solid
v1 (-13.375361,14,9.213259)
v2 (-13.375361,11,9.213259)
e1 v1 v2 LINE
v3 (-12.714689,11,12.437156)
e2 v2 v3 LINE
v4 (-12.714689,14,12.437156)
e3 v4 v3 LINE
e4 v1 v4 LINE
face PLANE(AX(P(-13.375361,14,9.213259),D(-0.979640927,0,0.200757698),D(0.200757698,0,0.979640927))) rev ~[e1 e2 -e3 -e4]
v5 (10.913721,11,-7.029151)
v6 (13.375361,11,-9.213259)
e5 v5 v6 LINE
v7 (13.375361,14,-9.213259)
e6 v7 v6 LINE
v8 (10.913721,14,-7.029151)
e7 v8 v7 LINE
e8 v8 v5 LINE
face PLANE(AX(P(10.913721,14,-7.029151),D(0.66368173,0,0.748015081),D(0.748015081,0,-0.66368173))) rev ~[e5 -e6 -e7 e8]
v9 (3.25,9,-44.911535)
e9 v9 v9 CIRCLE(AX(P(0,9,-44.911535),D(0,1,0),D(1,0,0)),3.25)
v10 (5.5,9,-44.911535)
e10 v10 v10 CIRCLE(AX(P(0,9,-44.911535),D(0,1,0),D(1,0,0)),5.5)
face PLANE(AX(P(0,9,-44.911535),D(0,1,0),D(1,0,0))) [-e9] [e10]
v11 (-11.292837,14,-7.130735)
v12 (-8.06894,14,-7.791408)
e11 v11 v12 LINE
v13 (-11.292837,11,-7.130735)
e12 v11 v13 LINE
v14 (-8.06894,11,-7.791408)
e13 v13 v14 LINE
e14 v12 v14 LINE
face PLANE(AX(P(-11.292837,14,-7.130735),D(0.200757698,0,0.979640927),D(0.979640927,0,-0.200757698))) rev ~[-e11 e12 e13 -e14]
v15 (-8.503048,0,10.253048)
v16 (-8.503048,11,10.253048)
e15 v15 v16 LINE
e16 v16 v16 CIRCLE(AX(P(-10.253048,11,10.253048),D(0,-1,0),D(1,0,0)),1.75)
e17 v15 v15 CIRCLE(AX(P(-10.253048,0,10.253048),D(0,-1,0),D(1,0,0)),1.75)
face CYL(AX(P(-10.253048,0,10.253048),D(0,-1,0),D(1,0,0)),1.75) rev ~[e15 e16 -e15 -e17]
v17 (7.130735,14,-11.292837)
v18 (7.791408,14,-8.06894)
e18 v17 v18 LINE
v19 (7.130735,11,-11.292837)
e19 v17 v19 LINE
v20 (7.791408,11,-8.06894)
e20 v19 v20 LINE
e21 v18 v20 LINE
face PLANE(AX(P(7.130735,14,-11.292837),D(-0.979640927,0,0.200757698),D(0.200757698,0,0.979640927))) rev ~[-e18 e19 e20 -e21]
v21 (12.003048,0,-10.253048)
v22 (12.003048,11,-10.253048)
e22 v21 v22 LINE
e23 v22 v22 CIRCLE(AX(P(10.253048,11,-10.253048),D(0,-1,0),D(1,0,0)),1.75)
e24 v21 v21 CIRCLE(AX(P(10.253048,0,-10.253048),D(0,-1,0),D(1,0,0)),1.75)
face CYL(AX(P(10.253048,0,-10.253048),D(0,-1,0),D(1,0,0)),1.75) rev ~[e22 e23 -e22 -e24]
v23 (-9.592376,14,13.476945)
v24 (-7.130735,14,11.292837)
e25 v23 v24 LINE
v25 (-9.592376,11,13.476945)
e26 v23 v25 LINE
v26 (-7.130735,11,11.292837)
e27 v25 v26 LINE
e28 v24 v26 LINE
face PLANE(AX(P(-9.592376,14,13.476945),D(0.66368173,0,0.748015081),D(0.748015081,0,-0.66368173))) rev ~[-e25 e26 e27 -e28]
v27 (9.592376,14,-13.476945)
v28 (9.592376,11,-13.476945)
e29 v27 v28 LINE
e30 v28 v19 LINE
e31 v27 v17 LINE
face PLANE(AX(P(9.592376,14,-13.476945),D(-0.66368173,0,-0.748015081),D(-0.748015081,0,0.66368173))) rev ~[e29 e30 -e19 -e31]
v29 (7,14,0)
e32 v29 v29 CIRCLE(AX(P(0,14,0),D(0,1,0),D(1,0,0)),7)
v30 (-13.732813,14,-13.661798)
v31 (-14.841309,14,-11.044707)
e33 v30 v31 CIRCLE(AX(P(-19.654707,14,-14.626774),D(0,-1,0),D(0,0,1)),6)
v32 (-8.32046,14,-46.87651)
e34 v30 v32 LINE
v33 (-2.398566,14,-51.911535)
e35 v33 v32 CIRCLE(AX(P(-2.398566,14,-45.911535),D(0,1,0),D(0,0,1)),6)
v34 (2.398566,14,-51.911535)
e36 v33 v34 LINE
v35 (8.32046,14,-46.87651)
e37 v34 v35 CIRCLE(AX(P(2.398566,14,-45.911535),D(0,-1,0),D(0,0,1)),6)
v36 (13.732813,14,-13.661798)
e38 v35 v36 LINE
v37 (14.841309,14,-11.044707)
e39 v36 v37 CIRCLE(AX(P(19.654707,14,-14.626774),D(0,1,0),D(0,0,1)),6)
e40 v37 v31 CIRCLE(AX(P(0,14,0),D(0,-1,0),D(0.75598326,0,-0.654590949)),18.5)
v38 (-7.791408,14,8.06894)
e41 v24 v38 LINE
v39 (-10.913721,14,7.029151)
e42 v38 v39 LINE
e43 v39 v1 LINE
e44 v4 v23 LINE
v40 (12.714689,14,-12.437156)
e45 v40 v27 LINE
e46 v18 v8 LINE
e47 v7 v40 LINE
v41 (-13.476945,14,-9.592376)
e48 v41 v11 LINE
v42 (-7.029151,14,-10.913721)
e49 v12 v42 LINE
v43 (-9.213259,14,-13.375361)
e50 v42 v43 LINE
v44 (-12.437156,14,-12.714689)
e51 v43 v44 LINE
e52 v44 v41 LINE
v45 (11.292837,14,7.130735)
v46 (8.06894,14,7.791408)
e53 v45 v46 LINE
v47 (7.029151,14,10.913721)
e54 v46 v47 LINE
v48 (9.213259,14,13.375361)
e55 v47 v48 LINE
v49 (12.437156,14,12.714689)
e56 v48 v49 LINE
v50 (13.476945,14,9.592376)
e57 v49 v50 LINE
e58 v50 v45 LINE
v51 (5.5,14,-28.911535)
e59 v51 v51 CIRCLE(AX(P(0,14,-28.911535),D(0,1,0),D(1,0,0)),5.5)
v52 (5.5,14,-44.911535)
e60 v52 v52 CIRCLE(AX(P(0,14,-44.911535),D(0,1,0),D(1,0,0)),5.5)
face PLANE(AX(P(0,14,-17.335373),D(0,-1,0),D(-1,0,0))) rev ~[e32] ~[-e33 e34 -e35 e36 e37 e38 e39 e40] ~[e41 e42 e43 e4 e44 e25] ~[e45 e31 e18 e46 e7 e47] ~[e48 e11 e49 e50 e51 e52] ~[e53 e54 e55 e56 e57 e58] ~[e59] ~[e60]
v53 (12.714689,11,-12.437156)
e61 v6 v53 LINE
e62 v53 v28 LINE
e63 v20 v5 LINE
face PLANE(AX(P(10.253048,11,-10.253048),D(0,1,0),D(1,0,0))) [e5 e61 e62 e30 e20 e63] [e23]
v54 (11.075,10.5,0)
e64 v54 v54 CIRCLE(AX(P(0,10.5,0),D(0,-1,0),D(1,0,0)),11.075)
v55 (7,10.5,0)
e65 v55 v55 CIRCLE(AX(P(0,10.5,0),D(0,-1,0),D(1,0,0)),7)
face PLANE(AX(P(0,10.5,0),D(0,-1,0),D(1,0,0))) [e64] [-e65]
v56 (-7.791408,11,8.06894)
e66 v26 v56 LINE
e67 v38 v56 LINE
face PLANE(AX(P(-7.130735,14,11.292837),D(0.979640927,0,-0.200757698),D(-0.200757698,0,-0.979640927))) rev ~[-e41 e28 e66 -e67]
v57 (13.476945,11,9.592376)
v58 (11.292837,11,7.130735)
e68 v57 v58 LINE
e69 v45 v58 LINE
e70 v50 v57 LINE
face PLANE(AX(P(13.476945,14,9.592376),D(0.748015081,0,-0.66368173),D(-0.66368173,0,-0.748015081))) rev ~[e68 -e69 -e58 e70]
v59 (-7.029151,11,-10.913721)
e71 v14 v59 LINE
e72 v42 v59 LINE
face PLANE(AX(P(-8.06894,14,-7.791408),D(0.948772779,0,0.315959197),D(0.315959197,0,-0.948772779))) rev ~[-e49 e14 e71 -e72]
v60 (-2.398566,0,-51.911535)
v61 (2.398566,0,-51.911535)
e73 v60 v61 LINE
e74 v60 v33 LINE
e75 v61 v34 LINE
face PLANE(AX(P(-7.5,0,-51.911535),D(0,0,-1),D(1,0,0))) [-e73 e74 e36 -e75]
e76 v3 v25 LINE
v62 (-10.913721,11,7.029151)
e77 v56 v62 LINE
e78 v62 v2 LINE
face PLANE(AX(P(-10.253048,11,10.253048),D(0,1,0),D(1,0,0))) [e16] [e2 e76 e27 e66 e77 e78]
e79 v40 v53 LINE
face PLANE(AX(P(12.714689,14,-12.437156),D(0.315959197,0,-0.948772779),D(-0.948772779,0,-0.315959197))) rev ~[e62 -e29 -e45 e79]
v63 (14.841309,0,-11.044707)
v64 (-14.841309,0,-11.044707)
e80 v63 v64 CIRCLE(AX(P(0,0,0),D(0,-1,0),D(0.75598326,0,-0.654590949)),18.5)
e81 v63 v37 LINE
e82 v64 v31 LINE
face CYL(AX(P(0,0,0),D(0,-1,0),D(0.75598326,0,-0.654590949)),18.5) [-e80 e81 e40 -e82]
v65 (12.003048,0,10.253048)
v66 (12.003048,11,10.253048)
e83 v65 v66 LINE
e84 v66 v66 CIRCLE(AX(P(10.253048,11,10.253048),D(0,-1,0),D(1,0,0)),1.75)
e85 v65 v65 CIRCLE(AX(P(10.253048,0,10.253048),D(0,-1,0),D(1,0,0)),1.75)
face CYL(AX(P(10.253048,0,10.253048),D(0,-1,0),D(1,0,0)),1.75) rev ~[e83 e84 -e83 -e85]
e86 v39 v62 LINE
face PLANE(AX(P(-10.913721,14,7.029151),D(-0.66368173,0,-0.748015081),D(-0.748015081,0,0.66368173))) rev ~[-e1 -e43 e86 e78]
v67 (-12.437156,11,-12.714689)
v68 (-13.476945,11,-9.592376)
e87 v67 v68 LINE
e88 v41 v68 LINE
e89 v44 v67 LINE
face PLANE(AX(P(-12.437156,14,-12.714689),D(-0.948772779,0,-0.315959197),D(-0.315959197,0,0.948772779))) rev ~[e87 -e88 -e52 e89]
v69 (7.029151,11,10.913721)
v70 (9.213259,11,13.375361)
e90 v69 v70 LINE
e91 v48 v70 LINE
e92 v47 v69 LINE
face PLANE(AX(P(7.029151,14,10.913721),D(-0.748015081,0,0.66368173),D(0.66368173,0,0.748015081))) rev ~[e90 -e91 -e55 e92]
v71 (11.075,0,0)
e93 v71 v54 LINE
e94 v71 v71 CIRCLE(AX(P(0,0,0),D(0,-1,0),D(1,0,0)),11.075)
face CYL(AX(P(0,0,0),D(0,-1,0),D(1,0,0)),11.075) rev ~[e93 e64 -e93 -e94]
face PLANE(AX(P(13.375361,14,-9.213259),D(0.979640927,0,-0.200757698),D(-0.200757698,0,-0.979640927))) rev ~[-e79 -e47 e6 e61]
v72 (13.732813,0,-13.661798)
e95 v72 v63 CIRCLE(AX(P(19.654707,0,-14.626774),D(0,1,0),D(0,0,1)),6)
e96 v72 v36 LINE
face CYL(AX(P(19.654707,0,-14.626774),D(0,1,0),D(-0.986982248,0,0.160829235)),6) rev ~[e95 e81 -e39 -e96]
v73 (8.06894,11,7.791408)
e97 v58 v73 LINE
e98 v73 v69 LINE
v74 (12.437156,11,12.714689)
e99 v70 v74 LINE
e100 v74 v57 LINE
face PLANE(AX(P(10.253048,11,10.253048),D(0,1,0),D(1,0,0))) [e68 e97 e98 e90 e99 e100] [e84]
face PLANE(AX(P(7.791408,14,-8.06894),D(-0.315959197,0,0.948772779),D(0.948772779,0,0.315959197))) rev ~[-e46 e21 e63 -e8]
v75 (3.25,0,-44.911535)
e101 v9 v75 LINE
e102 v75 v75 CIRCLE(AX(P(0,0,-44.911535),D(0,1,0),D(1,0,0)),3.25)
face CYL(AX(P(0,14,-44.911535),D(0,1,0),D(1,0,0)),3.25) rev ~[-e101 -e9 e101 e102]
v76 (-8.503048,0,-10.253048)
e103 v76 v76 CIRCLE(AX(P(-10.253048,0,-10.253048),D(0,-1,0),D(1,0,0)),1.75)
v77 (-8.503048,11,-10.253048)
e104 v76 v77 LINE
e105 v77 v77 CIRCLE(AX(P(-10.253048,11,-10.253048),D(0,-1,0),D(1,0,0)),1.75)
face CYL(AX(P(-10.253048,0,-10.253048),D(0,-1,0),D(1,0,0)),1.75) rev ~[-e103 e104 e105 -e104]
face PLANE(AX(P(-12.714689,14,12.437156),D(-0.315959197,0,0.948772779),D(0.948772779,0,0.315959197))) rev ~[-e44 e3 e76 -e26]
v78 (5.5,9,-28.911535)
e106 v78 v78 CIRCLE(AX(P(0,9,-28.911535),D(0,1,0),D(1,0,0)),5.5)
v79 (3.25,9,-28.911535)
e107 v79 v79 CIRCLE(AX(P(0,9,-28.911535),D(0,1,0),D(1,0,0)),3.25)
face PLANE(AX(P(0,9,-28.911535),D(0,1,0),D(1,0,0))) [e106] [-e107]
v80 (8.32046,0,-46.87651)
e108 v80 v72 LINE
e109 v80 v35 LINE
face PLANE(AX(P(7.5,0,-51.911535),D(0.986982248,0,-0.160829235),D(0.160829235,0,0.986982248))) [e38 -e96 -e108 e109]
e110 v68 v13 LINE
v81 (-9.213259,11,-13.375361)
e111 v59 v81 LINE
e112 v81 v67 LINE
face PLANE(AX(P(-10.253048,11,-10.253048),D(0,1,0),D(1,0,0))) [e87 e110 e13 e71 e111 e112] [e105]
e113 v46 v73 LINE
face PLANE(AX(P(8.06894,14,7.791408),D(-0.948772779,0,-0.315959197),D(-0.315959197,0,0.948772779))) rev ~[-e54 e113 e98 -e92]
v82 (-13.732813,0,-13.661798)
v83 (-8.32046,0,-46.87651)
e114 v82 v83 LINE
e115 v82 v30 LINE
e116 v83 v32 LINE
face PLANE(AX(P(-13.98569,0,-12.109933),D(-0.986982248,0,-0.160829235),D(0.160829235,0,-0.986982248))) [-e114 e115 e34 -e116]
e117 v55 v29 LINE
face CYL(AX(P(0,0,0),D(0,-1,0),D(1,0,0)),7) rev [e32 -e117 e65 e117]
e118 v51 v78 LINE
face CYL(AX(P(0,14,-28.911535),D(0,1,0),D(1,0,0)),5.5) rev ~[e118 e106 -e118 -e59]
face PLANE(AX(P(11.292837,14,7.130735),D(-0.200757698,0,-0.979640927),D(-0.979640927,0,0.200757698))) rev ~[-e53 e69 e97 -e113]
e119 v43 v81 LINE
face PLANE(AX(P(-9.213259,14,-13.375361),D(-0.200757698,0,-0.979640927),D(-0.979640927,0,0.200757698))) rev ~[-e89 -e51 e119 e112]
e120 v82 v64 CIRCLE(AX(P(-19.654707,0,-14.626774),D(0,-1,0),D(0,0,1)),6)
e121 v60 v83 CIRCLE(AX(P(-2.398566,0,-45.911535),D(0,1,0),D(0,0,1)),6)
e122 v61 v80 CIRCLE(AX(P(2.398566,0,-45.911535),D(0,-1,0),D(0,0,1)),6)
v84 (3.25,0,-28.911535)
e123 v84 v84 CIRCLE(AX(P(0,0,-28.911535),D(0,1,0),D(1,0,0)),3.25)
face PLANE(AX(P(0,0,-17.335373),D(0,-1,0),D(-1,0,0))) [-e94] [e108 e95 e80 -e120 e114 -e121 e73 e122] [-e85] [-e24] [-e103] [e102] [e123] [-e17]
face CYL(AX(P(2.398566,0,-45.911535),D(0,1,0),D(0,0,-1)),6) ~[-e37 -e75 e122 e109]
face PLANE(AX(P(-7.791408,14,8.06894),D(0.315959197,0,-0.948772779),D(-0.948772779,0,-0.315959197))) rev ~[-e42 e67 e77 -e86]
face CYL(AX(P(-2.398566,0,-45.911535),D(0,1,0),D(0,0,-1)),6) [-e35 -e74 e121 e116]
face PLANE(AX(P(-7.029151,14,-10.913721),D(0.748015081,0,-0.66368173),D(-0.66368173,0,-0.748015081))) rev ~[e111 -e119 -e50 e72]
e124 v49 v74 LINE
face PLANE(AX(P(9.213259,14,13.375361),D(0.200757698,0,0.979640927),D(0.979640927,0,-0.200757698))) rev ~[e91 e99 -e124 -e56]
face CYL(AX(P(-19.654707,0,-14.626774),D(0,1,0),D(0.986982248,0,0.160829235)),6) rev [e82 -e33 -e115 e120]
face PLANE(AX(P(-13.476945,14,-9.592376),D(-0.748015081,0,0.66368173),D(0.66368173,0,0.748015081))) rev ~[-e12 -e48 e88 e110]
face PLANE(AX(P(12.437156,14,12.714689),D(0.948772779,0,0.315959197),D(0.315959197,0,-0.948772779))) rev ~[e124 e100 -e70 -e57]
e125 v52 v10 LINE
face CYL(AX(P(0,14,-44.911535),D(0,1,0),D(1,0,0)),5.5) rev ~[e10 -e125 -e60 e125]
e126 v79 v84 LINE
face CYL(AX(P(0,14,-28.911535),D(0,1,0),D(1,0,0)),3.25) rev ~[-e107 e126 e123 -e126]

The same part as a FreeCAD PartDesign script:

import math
import FreeCAD as App
import Part
import Sketcher
from FreeCAD import Vector
Q = App.Units.Quantity


def edges_at(feature, points):
    """Names of the edges that pass closest to the given points."""
    edges = feature.Shape.Edges
    near = lambda p: min(range(len(edges)), key=lambda i: edges[i].distToShape(Part.Vertex(*p))[0])
    return sorted({f"Edge{near(p) + 1}" for p in points})

doc = App.newDocument("Part")
body = doc.addObject("PartDesign::Body", "Body")

# Sketch on XZ plane
sketch1 = doc.addObject("Sketcher::SketchObject", "Sketch")
body.addObject(sketch1)
sketch1.AttachmentSupport = (doc.XZ_Plane, [""])
sketch1.MapMode = "FlatFace"
sketch1.addGeometry([
    Part.LineSegment(Vector(8, -52, 0), Vector(-8, -52, 0)),  # 0
    Part.LineSegment(Vector(-8, -52, 0), Vector(-14, -12, 0)),  # 1
    Part.ArcOfCircle(Part.Circle(Vector(0, 0, 0), Vector(0, 0, 1), 18), math.radians(-41), math.radians(221)),  # 2
    Part.LineSegment(Vector(14, -12, 0), Vector(8, -52, 0)),  # 3
    Part.Circle(Vector(0, 0, 0), Vector(0, 0, 1), 7),  # 4
], False)
sketch1.addConstraint([
    Sketcher.Constraint("Coincident", 0, 2, 1, 1),
    Sketcher.Constraint("Coincident", 1, 2, 2, 2),
    Sketcher.Constraint("Coincident", 2, 1, 3, 1),
    Sketcher.Constraint("Coincident", 3, 2, 0, 1),
    Sketcher.Constraint("Horizontal", 0),
    Sketcher.Constraint("Coincident", 2, 3, -1, 1),
    Sketcher.Constraint("Coincident", 4, 3, -1, 1),
    Sketcher.Constraint("Horizontal", 1, 2, 2, 1),
    Sketcher.Constraint("Equal", 1, 3),
    Sketcher.Constraint("Diameter", 4, Q("14 mm")),
    Sketcher.Constraint("Radius", 2, Q("18.5 mm")),
    Sketcher.Constraint("DistanceX", 0, 2, 0, 1, Q("15 mm")),
    Sketcher.Constraint("DistanceY", 0, 2, 1, 2, Q("39.801602 mm")),
    Sketcher.Constraint("DistanceX", 1, 2, -1, 1, Q("13.98569 mm")),
])
pad1 = doc.addObject("PartDesign::Pad", "Pad")
body.addObject(pad1)
pad1.Profile = sketch1
pad1.Length = 14
pad1.Reversed = True

# Sketch on XZ plane
sketch2 = doc.addObject("Sketcher::SketchObject", "Sketch001")
body.addObject(sketch2)
sketch2.AttachmentSupport = (doc.XZ_Plane, [""])
sketch2.MapMode = "FlatFace"
sketch2.addGeometry(Part.Circle(Vector(0, 0, 0), Vector(0, 0, 1), 11), False)
sketch2.addConstraint([
    Sketcher.Constraint("Coincident", 0, 3, -1, 1),
    Sketcher.Constraint("Diameter", 0, Q("22.15 mm")),
])
pocket1 = doc.addObject("PartDesign::Pocket", "Pocket")
body.addObject(pocket1)
pocket1.Profile = sketch2
pocket1.Length = 10.5

# Sketch on XZ plane
sketch3 = doc.addObject("Sketcher::SketchObject", "Sketch002")
body.addObject(sketch3)
sketch3.AttachmentSupport = (doc.XZ_Plane, [""])
sketch3.MapMode = "FlatFace"
sketch3.addGeometry([
    Part.Circle(Vector(10.3, 10.3, 0), Vector(0, 0, 1), 1.8),
    Part.Circle(Vector(10.3, -10.3, 0), Vector(0, 0, 1), 1.8),
    Part.Circle(Vector(-10.3, -10.3, 0), Vector(0, 0, 1), 1.8),
    Part.Circle(Vector(-10.3, 10.3, 0), Vector(0, 0, 1), 1.8),
], False)
sketch3.addConstraint([
    Sketcher.Constraint("Equal", 0, 1),
    Sketcher.Constraint("Equal", 1, 2),
    Sketcher.Constraint("Equal", 2, 3),
    Sketcher.Constraint("Symmetric", 0, 3, 2, 3, -1, 1),
    Sketcher.Constraint("Symmetric", 1, 3, 3, 3, -1, 1),
    Sketcher.Constraint("Symmetric", 1, 3, 2, 3, -2),
    Sketcher.Constraint("Diameter", 0, Q("3.5 mm")),
    Sketcher.Constraint("DistanceX", -1, 1, 0, 3, Q("10.253048 mm")),
    Sketcher.Constraint("DistanceY", -1, 1, 0, 3, Q("10.253048 mm")),
])
pocket2 = doc.addObject("PartDesign::Pocket", "Pocket001")
body.addObject(pocket2)
pocket2.Profile = sketch3
pocket2.Type = "ThroughAll"

# Sketch on XZ plane
sketch4 = doc.addObject("Sketcher::SketchObject", "Sketch003")
body.addObject(sketch4)
sketch4.AttachmentSupport = (doc.XZ_Plane, [""])
sketch4.MapMode = "FlatFace"
sketch4.AttachmentOffset = App.Placement(Vector(0, 0, -14), App.Rotation())
sketch4.addGeometry([
    Part.LineSegment(Vector(13.4, -9.2, 0), Vector(12.7, -12.4, 0)),  # 0
    Part.LineSegment(Vector(12.7, -12.4, 0), Vector(9.6, -13.5, 0)),  # 1
    Part.LineSegment(Vector(9.6, -13.5, 0), Vector(7.1, -11.3, 0)),  # 2
    Part.LineSegment(Vector(7.1, -11.3, 0), Vector(7.8, -8.1, 0)),  # 3
    Part.LineSegment(Vector(7.8, -8.1, 0), Vector(10.9, -7, 0)),  # 4
    Part.LineSegment(Vector(10.9, -7, 0), Vector(13.4, -9.2, 0)),  # 5
    Part.LineSegment(Vector(-9.2, -13.4, 0), Vector(-12.4, -12.7, 0)),  # 6
    Part.LineSegment(Vector(-12.4, -12.7, 0), Vector(-13.5, -9.6, 0)),  # 7
    Part.LineSegment(Vector(-13.5, -9.6, 0), Vector(-11.3, -7.1, 0)),  # 8
    Part.LineSegment(Vector(-11.3, -7.1, 0), Vector(-8.1, -7.8, 0)),  # 9
    Part.LineSegment(Vector(-8.1, -7.8, 0), Vector(-7, -10.9, 0)),  # 10
    Part.LineSegment(Vector(-7, -10.9, 0), Vector(-9.2, -13.4, 0)),  # 11
    Part.LineSegment(Vector(9.2, 13.4, 0), Vector(12.4, 12.7, 0)),  # 12
    Part.LineSegment(Vector(12.4, 12.7, 0), Vector(13.5, 9.6, 0)),  # 13
    Part.LineSegment(Vector(13.5, 9.6, 0), Vector(11.3, 7.1, 0)),  # 14
    Part.LineSegment(Vector(11.3, 7.1, 0), Vector(8.1, 7.8, 0)),  # 15
    Part.LineSegment(Vector(8.1, 7.8, 0), Vector(7, 10.9, 0)),  # 16
    Part.LineSegment(Vector(7, 10.9, 0), Vector(9.2, 13.4, 0)),  # 17
    Part.LineSegment(Vector(-13.4, 9.2, 0), Vector(-12.7, 12.4, 0)),  # 18
    Part.LineSegment(Vector(-12.7, 12.4, 0), Vector(-9.6, 13.5, 0)),  # 19
    Part.LineSegment(Vector(-9.6, 13.5, 0), Vector(-7.1, 11.3, 0)),  # 20
    Part.LineSegment(Vector(-7.1, 11.3, 0), Vector(-7.8, 8.1, 0)),  # 21
    Part.LineSegment(Vector(-7.8, 8.1, 0), Vector(-10.9, 7, 0)),  # 22
    Part.LineSegment(Vector(-10.9, 7, 0), Vector(-13.4, 9.2, 0)),  # 23
], False)
sketch4.addConstraint([
    Sketcher.Constraint("Coincident", 0, 2, 1, 1),
    Sketcher.Constraint("Coincident", 1, 2, 2, 1),
    Sketcher.Constraint("Coincident", 2, 2, 3, 1),
    Sketcher.Constraint("Coincident", 3, 2, 4, 1),
    Sketcher.Constraint("Coincident", 4, 2, 5, 1),
    Sketcher.Constraint("Coincident", 5, 2, 0, 1),
    Sketcher.Constraint("Coincident", 6, 2, 7, 1),
    Sketcher.Constraint("Coincident", 7, 2, 8, 1),
    Sketcher.Constraint("Coincident", 8, 2, 9, 1),
    Sketcher.Constraint("Coincident", 9, 2, 10, 1),
    Sketcher.Constraint("Coincident", 10, 2, 11, 1),
    Sketcher.Constraint("Coincident", 11, 2, 6, 1),
    Sketcher.Constraint("Coincident", 12, 2, 13, 1),
    Sketcher.Constraint("Coincident", 13, 2, 14, 1),
    Sketcher.Constraint("Coincident", 14, 2, 15, 1),
    Sketcher.Constraint("Coincident", 15, 2, 16, 1),
    Sketcher.Constraint("Coincident", 16, 2, 17, 1),
    Sketcher.Constraint("Coincident", 17, 2, 12, 1),
    Sketcher.Constraint("Coincident", 18, 2, 19, 1),
    Sketcher.Constraint("Coincident", 19, 2, 20, 1),
    Sketcher.Constraint("Coincident", 20, 2, 21, 1),
    Sketcher.Constraint("Coincident", 21, 2, 22, 1),
    Sketcher.Constraint("Coincident", 22, 2, 23, 1),
    Sketcher.Constraint("Coincident", 23, 2, 18, 1),
    Sketcher.Constraint("Symmetric", 6, 2, 12, 2, -1, 1),
    Sketcher.Constraint("Symmetric", 7, 2, 13, 2, -1, 1),
    Sketcher.Constraint("Symmetric", 8, 2, 14, 2, -1, 1),
    Sketcher.Constraint("Symmetric", 9, 2, 15, 2, -1, 1),
    Sketcher.Constraint("Symmetric", 10, 2, 16, 2, -1, 1),
    Sketcher.Constraint("Symmetric", 11, 2, 17, 2, -1, 1),
    Sketcher.Constraint("Symmetric", 0, 2, 18, 2, -1, 1),
    Sketcher.Constraint("Symmetric", 1, 2, 19, 2, -1, 1),
    Sketcher.Constraint("Symmetric", 2, 2, 20, 2, -1, 1),
    Sketcher.Constraint("Symmetric", 3, 2, 21, 2, -1, 1),
    Sketcher.Constraint("Symmetric", 4, 2, 22, 2, -1, 1),
    Sketcher.Constraint("Symmetric", 5, 2, 23, 2, -1, 1),
    Sketcher.Constraint("Parallel", 0, 3),
    Sketcher.Constraint("Parallel", 1, 4),
    Sketcher.Constraint("Parallel", 2, 5),
    Sketcher.Constraint("Perpendicular", 3, 6),
    Sketcher.Constraint("Perpendicular", 4, 7),
    Sketcher.Constraint("Perpendicular", 5, 8),
    Sketcher.Constraint("Parallel", 6, 9),
    Sketcher.Constraint("Parallel", 7, 10),
    Sketcher.Constraint("Parallel", 8, 11),
    Sketcher.Constraint("Equal", 0, 1),
    Sketcher.Constraint("Equal", 1, 2),
    Sketcher.Constraint("Equal", 2, 3),
    Sketcher.Constraint("Equal", 5, 6),
    Sketcher.Constraint("Equal", 6, 7),
    Sketcher.Constraint("Equal", 7, 8),
    Sketcher.Constraint("Equal", 8, 9),
    Sketcher.Constraint("DistanceX", -1, 1, 0, 2, Q("12.714689 mm")),
    Sketcher.Constraint("DistanceX", -1, 1, 3, 2, Q("7.791408 mm")),
    Sketcher.Constraint("DistanceY", 3, 2, -1, 1, Q("8.06894 mm")),
    Sketcher.Constraint("DistanceX", -1, 1, 4, 2, Q("10.913721 mm")),
    Sketcher.Constraint("DistanceY", 4, 2, -1, 1, Q("7.029151 mm")),
    Sketcher.Constraint("DistanceX", -1, 1, 5, 2, Q("13.375361 mm")),
    Sketcher.Constraint("DistanceY", 6, 2, -1, 1, Q("12.714689 mm")),
    Sketcher.Constraint("DistanceX", 9, 2, -1, 1, Q("8.06894 mm")),
])
pocket3 = doc.addObject("PartDesign::Pocket", "Pocket002")
body.addObject(pocket3)
pocket3.Profile = sketch4
pocket3.Length = 3
pocket3.Reversed = True

# Sketch on XZ plane
sketch5 = doc.addObject("Sketcher::SketchObject", "Sketch004")
body.addObject(sketch5)
sketch5.AttachmentSupport = (doc.XZ_Plane, [""])
sketch5.MapMode = "FlatFace"
sketch5.AttachmentOffset = App.Placement(Vector(0, 0, -14), App.Rotation())
sketch5.addGeometry([
    Part.Circle(Vector(0, -44.9, 0), Vector(0, 0, 1), 3.2),
    Part.Circle(Vector(0, -28.9, 0), Vector(0, 0, 1), 3.2),
], False)
sketch5.addConstraint([
    Sketcher.Constraint("Equal", 0, 1),
    Sketcher.Constraint("PointOnObject", 0, 3, -2),
    Sketcher.Constraint("PointOnObject", 1, 3, -2),
    Sketcher.Constraint("Diameter", 0, Q("6.5 mm")),
    Sketcher.Constraint("DistanceY", 0, 3, 1, 3, Q("16 mm")),
    Sketcher.Constraint("DistanceY", 0, 3, -1, 1, Q("44.911535 mm")),
])
pocket4 = doc.addObject("PartDesign::Pocket", "Pocket003")
body.addObject(pocket4)
pocket4.Profile = sketch5
pocket4.Type = "ThroughAll"
pocket4.Reversed = True

# Sketch on XZ plane
sketch6 = doc.addObject("Sketcher::SketchObject", "Sketch005")
body.addObject(sketch6)
sketch6.AttachmentSupport = (doc.XZ_Plane, [""])
sketch6.MapMode = "FlatFace"
sketch6.AttachmentOffset = App.Placement(Vector(0, 0, -14), App.Rotation())
sketch6.addGeometry([
    Part.Circle(Vector(0, -29, 0), Vector(0, 0, 1), 6),
    Part.Circle(Vector(0, -45, 0), Vector(0, 0, 1), 6),
], False)
sketch6.addConstraint([
    Sketcher.Constraint("Equal", 0, 1),
    Sketcher.Constraint("PointOnObject", 0, 3, -2),
    Sketcher.Constraint("PointOnObject", 1, 3, -2),
    Sketcher.Constraint("Diameter", 0, Q("11 mm")),
    Sketcher.Constraint("DistanceY", 1, 3, 0, 3, Q("16 mm")),
    Sketcher.Constraint("DistanceY", 0, 3, -1, 1, Q("28.911535 mm")),
])
pocket5 = doc.addObject("PartDesign::Pocket", "Pocket004")
body.addObject(pocket5)
pocket5.Profile = sketch6
pocket5.Length = 5
pocket5.Reversed = True
doc.recompute()

fillet = doc.addObject("PartDesign::Fillet", "Fillet")
body.addObject(fillet)
fillet.Base = (pocket5, edges_at(pocket5, [
    (-7.5, 7, -51.912),
    (7.5, 7, -51.912),
    (13.986, 7, -12.11),
    (-13.986, 7, -12.11),
]))
fillet.Radius = 6

doc.recompute()
